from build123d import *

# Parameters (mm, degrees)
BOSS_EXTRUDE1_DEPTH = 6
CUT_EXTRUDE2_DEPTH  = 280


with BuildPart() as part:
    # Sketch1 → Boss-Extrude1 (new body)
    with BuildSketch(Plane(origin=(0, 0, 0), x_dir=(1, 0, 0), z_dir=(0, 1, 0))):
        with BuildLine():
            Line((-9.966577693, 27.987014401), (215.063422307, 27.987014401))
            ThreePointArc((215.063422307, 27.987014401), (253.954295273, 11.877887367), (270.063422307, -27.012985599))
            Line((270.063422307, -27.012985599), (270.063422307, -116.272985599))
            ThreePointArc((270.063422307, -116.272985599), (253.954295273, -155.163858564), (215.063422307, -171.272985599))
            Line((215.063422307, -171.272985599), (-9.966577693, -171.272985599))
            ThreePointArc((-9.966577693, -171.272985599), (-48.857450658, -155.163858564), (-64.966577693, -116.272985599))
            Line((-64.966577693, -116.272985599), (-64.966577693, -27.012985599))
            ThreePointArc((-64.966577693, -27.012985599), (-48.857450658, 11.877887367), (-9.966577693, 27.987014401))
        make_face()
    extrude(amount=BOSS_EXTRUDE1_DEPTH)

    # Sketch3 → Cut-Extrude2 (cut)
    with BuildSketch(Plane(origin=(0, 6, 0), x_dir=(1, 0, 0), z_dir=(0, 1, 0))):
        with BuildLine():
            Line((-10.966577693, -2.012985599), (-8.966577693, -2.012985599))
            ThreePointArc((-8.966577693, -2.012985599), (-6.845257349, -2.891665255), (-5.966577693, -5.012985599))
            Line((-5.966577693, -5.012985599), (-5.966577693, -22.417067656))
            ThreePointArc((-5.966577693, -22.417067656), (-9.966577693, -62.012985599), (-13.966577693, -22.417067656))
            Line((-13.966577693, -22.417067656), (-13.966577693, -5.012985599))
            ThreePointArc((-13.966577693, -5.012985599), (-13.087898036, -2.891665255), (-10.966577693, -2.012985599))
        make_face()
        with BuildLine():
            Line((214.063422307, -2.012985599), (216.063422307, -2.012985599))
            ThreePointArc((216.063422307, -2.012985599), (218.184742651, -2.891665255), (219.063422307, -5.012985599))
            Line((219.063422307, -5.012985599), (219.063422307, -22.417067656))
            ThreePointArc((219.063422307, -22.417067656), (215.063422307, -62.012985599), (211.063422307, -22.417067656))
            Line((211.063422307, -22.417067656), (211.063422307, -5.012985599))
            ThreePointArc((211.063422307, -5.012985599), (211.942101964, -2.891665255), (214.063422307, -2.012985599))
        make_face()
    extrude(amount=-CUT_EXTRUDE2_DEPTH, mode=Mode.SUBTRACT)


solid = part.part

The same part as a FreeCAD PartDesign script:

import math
import FreeCAD as App
import Part
import Sketcher

V = App.Vector
Q = App.Units.Quantity

doc = App.newDocument("Part")
body = doc.addObject("PartDesign::Body", "Body")

# Sketch on XZ plane
sketch1 = body.newObject("Sketcher::SketchObject", "Sketch")
sketch1.AttachmentSupport = (doc.getObject("XZ_Plane"), [""])
sketch1.MapMode = "FlatFace"
sketch1.addGeometry([
    Part.LineSegment(V(215, -28, 0), V(-10, -28, 0)),  # 0
    Part.ArcOfCircle(Part.Circle(V(-10, 27, 0), V(0, 0, 1), 55), math.radians(180), math.radians(270)),  # 1
    Part.LineSegment(V(-65, 27, 0), V(-65, 116, 0)),  # 2
    Part.ArcOfCircle(Part.Circle(V(-10, 116, 0), V(0, 0, 1), 55), math.radians(90), math.radians(180)),  # 3
    Part.LineSegment(V(-10, 171, 0), V(215, 171, 0)),  # 4
    Part.ArcOfCircle(Part.Circle(V(215, 116, 0), V(0, 0, 1), 55), math.radians(0), math.radians(90)),  # 5
    Part.LineSegment(V(270, 116, 0), V(270, 27, 0)),  # 6
    Part.ArcOfCircle(Part.Circle(V(215, 27, 0), V(0, 0, 1), 55), math.radians(-90), math.radians(0)),  # 7
], False)
sketch1.addConstraint([
    Sketcher.Constraint("Tangent", 0, 2, 1, 2),
    Sketcher.Constraint("Tangent", 1, 1, 2, 1),
    Sketcher.Constraint("Tangent", 2, 2, 3, 2),
    Sketcher.Constraint("Tangent", 3, 1, 4, 1),
    Sketcher.Constraint("Tangent", 4, 2, 5, 2),
    Sketcher.Constraint("Tangent", 5, 1, 6, 1),
    Sketcher.Constraint("Tangent", 6, 2, 7, 2),
    Sketcher.Constraint("Tangent", 7, 1, 0, 1),
    Sketcher.Constraint("Horizontal", 0),
    Sketcher.Constraint("Vertical", 2),
    Sketcher.Constraint("Horizontal", 4),
    Sketcher.Constraint("Vertical", 6),
    Sketcher.Constraint("Equal", 1, 3),
    Sketcher.Constraint("Equal", 3, 5),
    Sketcher.Constraint("Equal", 5, 7),
    Sketcher.Constraint("Radius", 1, Q("55 mm")),
    Sketcher.Constraint("DistanceX", 0, 2, 0, 1, Q("225.03 mm")),
    Sketcher.Constraint("DistanceY", 2, 1, 2, 2, Q("89.26 mm")),
    Sketcher.Constraint("DistanceX", 1, 3, -1, 1, Q("9.966578 mm")),
    Sketcher.Constraint("DistanceY", -1, 1, 1, 3, Q("27.012986 mm")),
])
pad1 = body.newObject("PartDesign::Pad", "Pad")
pad1.Profile = sketch1
pad1.Length = 6
pad1.Reversed = True

# Sketch on XZ plane
sketch2 = body.newObject("Sketcher::SketchObject", "Sketch001")
sketch2.AttachmentSupport = (doc.getObject("XZ_Plane"), [""])
sketch2.MapMode = "FlatFace"
sketch2.AttachmentOffset = App.Placement(V(0, 0, -6), App.Rotation())
sketch2.addGeometry([
    Part.LineSegment(V(-9, 2, 0), V(-11, 2, 0)),  # 0
    Part.ArcOfCircle(Part.Circle(V(-11, 5, 0), V(0, 0, 1), 3), math.radians(180), math.radians(270)),  # 1
    Part.LineSegment(V(-14, 5, 0), V(-14, 22.4, 0)),  # 2
    Part.ArcOfCircle(Part.Circle(V(-10, 42, 0), V(0, 0, 1), 20), math.radians(-78), math.radians(258)),  # 3
    Part.LineSegment(V(-6, 22.4, 0), V(-6, 5, 0)),  # 4
    Part.ArcOfCircle(Part.Circle(V(-9, 5, 0), V(0, 0, 1), 3), math.radians(-90), math.radians(0)),  # 5
    Part.LineSegment(V(216.1, 2, 0), V(214.1, 2, 0)),  # 6
    Part.ArcOfCircle(Part.Circle(V(214.1, 5, 0), V(0, 0, 1), 3), math.radians(180), math.radians(270)),  # 7
    Part.LineSegment(V(211.1, 5, 0), V(211.1, 22.4, 0)),  # 8
    Part.ArcOfCircle(Part.Circle(V(215.1, 42, 0), V(0, 0, 1), 20), math.radians(-78), math.radians(258)),  # 9
    Part.LineSegment(V(219.1, 22.4, 0), V(219.1, 5, 0)),  # 10
    Part.ArcOfCircle(Part.Circle(V(216.1, 5, 0), V(0, 0, 1), 3), math.radians(-90), math.radians(0)),  # 11
], False)
sketch2.addConstraint([
    Sketcher.Constraint("Tangent", 0, 2, 1, 2),
    Sketcher.Constraint("Tangent", 1, 1, 2, 1),
    Sketcher.Constraint("Coincident", 2, 2, 3, 2),
    Sketcher.Constraint("Coincident", 3, 1, 4, 1),
    Sketcher.Constraint("Tangent", 4, 2, 5, 2),
    Sketcher.Constraint("Tangent", 5, 1, 0, 1),
    Sketcher.Constraint("Tangent", 6, 2, 7, 2),
    Sketcher.Constraint("Tangent", 7, 1, 8, 1),
    Sketcher.Constraint("Coincident", 8, 2, 9, 2),
    Sketcher.Constraint("Coincident", 9, 1, 10, 1),
    Sketcher.Constraint("Tangent", 10, 2, 11, 2),
    Sketcher.Constraint("Tangent", 11, 1, 6, 1),
    Sketcher.Constraint("Horizontal", 0),
    Sketcher.Constraint("Vertical", 2),
    Sketcher.Constraint("Vertical", 4),
    Sketcher.Constraint("Horizontal", 6),
    Sketcher.Constraint("Vertical", 8),
    Sketcher.Constraint("Vertical", 10),
    Sketcher.Constraint("Equal", 1, 5),
    Sketcher.Constraint("Equal", 5, 7),
    Sketcher.Constraint("Equal", 3, 9),
    Sketcher.Constraint("Equal", 7, 11),
    Sketcher.Constraint("Horizontal", 5, 3, 7, 3),
    Sketcher.Constraint("Horizontal", 3, 3, 9, 3),
    Sketcher.Constraint("Horizontal", 2, 2, 3, 1),
    Sketcher.Constraint("Horizontal", 3, 1, 8, 2),
    Sketcher.Constraint("Horizontal", 8, 2, 9, 1),
    Sketcher.Constraint("Radius", 1, Q("3 mm")),
    Sketcher.Constraint("Radius", 3, Q("20 mm")),
    Sketcher.Constraint("DistanceX", 0, 2, 0, 1, Q("2 mm")),
    Sketcher.Constraint("DistanceY", 1, 3, 3, 3, Q("37 mm")),
    Sketcher.Constraint("DistanceX", 5, 3, 7, 3, Q("223.03 mm")),
    Sketcher.Constraint("DistanceX", 1, 3, -1, 1, Q("10.966578 mm")),
    Sketcher.Constraint("DistanceY", -1, 1, 1, 3, Q("5.012986 mm")),
])
pocket1 = body.newObject("PartDesign::Pocket", "Pocket")
pocket1.Profile = sketch2
pocket1.Length = 280
pocket1.Reversed = True

doc.recompute()
